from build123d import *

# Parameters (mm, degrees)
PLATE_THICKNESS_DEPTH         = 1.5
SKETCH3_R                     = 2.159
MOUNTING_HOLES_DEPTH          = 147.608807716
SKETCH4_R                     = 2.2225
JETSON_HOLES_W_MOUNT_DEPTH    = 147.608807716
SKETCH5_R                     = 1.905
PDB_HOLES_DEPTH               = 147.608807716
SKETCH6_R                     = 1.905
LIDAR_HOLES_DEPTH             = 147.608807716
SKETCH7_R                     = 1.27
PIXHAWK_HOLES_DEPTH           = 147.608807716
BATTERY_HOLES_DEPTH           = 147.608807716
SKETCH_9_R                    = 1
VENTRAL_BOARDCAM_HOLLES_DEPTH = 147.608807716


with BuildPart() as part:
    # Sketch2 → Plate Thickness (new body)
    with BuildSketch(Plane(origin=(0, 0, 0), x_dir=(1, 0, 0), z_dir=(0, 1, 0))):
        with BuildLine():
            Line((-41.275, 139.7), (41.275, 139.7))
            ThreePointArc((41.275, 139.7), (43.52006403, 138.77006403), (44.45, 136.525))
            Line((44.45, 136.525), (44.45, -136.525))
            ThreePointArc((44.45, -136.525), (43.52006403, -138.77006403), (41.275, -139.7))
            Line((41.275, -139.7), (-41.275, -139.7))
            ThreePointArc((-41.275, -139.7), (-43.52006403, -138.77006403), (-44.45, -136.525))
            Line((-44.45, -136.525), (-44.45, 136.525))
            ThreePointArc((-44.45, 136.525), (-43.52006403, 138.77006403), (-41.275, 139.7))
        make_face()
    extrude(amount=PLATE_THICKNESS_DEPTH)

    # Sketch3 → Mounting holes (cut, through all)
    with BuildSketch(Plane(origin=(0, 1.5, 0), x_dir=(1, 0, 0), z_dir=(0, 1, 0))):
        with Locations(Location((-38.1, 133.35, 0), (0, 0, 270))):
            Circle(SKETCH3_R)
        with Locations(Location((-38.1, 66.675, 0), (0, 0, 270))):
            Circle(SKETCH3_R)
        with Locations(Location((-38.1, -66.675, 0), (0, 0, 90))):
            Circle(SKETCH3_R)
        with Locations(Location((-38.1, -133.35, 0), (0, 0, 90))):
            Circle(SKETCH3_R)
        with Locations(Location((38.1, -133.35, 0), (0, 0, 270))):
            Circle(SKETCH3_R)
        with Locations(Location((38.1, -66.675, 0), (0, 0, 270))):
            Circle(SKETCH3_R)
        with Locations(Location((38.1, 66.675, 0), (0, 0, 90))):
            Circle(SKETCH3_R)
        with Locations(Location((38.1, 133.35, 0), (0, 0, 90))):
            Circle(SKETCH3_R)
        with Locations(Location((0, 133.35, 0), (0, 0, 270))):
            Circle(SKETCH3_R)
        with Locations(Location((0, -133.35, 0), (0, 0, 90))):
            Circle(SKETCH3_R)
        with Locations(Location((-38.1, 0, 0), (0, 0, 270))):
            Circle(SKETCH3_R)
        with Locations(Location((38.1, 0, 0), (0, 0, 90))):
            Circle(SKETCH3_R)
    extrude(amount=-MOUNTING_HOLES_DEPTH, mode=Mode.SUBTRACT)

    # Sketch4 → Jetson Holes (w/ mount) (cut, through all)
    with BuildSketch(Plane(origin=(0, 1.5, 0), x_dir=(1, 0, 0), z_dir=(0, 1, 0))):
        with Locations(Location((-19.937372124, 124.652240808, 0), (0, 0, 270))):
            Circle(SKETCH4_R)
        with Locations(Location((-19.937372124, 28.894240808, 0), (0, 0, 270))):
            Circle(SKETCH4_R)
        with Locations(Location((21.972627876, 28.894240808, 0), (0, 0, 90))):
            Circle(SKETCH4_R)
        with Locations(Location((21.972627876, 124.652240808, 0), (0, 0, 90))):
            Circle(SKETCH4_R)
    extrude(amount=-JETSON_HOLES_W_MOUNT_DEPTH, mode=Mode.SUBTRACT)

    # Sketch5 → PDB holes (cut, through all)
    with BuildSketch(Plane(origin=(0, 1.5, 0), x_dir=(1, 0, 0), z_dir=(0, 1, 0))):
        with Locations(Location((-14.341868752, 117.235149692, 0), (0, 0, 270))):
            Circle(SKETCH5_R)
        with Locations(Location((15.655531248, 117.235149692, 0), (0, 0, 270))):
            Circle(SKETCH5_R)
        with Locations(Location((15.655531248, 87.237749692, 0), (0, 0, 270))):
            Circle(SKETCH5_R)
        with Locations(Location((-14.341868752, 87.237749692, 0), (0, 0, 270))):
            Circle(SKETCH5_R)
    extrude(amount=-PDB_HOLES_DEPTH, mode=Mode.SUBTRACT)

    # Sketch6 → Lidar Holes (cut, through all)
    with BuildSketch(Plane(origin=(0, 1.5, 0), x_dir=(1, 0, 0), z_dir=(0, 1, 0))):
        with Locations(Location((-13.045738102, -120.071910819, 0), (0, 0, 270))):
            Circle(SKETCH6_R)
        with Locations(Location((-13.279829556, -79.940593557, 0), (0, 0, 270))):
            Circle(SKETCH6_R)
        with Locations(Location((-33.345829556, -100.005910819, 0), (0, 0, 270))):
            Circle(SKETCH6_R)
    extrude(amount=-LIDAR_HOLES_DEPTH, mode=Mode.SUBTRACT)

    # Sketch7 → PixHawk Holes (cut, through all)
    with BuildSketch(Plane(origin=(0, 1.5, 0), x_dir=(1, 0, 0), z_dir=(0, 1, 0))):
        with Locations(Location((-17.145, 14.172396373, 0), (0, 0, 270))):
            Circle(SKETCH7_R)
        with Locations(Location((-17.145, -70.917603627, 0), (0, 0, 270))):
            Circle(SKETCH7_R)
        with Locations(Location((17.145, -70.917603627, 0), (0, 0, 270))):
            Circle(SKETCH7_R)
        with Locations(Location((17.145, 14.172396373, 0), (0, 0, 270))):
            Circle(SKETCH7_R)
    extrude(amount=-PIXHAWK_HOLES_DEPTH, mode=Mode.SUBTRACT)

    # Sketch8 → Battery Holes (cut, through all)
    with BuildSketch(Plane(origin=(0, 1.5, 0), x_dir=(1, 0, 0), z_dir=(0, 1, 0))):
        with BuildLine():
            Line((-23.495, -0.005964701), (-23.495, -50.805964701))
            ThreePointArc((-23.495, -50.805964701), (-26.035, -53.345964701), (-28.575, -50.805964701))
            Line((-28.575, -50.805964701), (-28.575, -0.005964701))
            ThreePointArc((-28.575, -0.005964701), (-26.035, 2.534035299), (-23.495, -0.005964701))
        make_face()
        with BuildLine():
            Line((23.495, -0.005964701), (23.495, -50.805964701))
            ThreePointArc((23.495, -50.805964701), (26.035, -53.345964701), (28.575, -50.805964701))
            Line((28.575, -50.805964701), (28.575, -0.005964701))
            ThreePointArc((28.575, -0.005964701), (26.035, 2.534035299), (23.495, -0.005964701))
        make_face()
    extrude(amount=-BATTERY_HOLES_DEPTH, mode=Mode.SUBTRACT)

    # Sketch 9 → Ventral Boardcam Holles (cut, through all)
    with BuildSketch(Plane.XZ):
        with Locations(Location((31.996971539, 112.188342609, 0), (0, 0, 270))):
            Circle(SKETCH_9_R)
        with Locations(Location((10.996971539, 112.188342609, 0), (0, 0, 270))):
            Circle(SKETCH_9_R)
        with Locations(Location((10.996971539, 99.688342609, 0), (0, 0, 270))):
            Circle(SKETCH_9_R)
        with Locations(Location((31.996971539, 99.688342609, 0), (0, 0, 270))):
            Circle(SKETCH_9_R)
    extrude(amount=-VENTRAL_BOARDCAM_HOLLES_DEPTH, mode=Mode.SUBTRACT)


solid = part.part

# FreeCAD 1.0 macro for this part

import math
import FreeCAD as App
import Part
import Sketcher
from FreeCAD import Vector
Q = App.Units.Quantity

doc = App.newDocument("Part")
body = doc.addObject("PartDesign::Body", "Body")

sketch1 = doc.addObject("Sketcher::SketchObject", "Sketch")
body.addObject(sketch1)
sketch1.AttachmentSupport = (doc.XZ_Plane, [""])
sketch1.MapMode = "FlatFace"
sketch1.addGeometry(Part.LineSegment(Vector(41.275, -139.7, 0), Vector(-41.275, -139.7, 0)), False)
sketch1.addGeometry(Part.ArcOfCircle(Part.Circle(Vector(-41.275, -136.525, 0), Vector(0, 0, 1), 3.175), math.radians(-180), math.radians(-90)), False)
sketch1.addGeometry(Part.LineSegment(Vector(-44.45, -136.525, 0), Vector(-44.45, 136.525, 0)), False)
sketch1.addGeometry(Part.ArcOfCircle(Part.Circle(Vector(-41.275, 136.525, 0), Vector(0, 0, 1), 3.175), math.radians(90), math.radians(180)), False)
sketch1.addGeometry(Part.LineSegment(Vector(-41.275, 139.7, 0), Vector(41.275, 139.7, 0)), False)
sketch1.addGeometry(Part.ArcOfCircle(Part.Circle(Vector(41.275, 136.525, 0), Vector(0, 0, 1), 3.175), math.radians(0), math.radians(90)), False)
sketch1.addGeometry(Part.LineSegment(Vector(44.45, 136.525, 0), Vector(44.45, -136.525, 0)), False)
sketch1.addGeometry(Part.ArcOfCircle(Part.Circle(Vector(41.275, -136.525, 0), Vector(0, 0, 1), 3.175), math.radians(-90), math.radians(0)), False)
sketch1.addConstraint(Sketcher.Constraint("Tangent", 0, 2, 1, 2))
sketch1.addConstraint(Sketcher.Constraint("Tangent", 1, 1, 2, 1))
sketch1.addConstraint(Sketcher.Constraint("Tangent", 2, 2, 3, 2))
sketch1.addConstraint(Sketcher.Constraint("Tangent", 3, 1, 4, 1))
sketch1.addConstraint(Sketcher.Constraint("Tangent", 4, 2, 5, 2))
sketch1.addConstraint(Sketcher.Constraint("Tangent", 5, 1, 6, 1))
sketch1.addConstraint(Sketcher.Constraint("Tangent", 6, 2, 7, 2))
sketch1.addConstraint(Sketcher.Constraint("Tangent", 7, 1, 0, 1))
sketch1.addConstraint(Sketcher.Constraint("Horizontal", 0))
sketch1.addConstraint(Sketcher.Constraint("Vertical", 2))
sketch1.addConstraint(Sketcher.Constraint("Horizontal", 4))
sketch1.addConstraint(Sketcher.Constraint("Vertical", 6))
sketch1.addConstraint(Sketcher.Constraint("Equal", 1, 3))
sketch1.addConstraint(Sketcher.Constraint("Equal", 3, 5))
sketch1.addConstraint(Sketcher.Constraint("Equal", 5, 7))
sketch1.addConstraint(Sketcher.Constraint("Symmetric", 1, 3, 5, 3, -1, 1))
sketch1.addConstraint(Sketcher.Constraint("Radius", 1, Q("0.125 in")))
sketch1.addConstraint(Sketcher.Constraint("DistanceX", 0, 2, 0, 1, Q("3.25 in")))
sketch1.addConstraint(Sketcher.Constraint("DistanceY", 2, 1, 2, 2, Q("10.75 in")))
pad1 = doc.addObject("PartDesign::Pad", "Pad")
body.addObject(pad1)
pad1.Profile = sketch1
pad1.Length = 1.5
pad1.Reversed = True

sketch2 = doc.addObject("Sketcher::SketchObject", "Sketch001")
body.addObject(sketch2)
sketch2.AttachmentSupport = (doc.XZ_Plane, [""])
sketch2.MapMode = "FlatFace"
sketch2.AttachmentOffset = App.Placement(Vector(0, 0, -1.5), App.Rotation())
sketch2.addGeometry(Part.Circle(Vector(-38.1, -133.35, 0), Vector(0, 0, 1), 2.159), False)
sketch2.addGeometry(Part.Circle(Vector(-38.1, -66.675, 0), Vector(0, 0, 1), 2.159), False)
sketch2.addGeometry(Part.Circle(Vector(-38.1, 66.675, 0), Vector(0, 0, 1), 2.159), False)
sketch2.addGeometry(Part.Circle(Vector(-38.1, 133.35, 0), Vector(0, 0, 1), 2.159), False)
sketch2.addGeometry(Part.Circle(Vector(38.1, 133.35, 0), Vector(0, 0, 1), 2.159), False)
sketch2.addGeometry(Part.Circle(Vector(38.1, 66.675, 0), Vector(0, 0, 1), 2.159), False)
sketch2.addGeometry(Part.Circle(Vector(38.1, -66.675, 0), Vector(0, 0, 1), 2.159), False)
sketch2.addGeometry(Part.Circle(Vector(38.1, -133.35, 0), Vector(0, 0, 1), 2.159), False)
sketch2.addGeometry(Part.Circle(Vector(0, -133.35, 0), Vector(0, 0, 1), 2.159), False)
sketch2.addGeometry(Part.Circle(Vector(0, 133.35, 0), Vector(0, 0, 1), 2.159), False)
sketch2.addGeometry(Part.Circle(Vector(-38.1, 0, 0), Vector(0, 0, 1), 2.159), False)
sketch2.addGeometry(Part.Circle(Vector(38.1, 0, 0), Vector(0, 0, 1), 2.159), False)
sketch2.addConstraint(Sketcher.Constraint("Equal", 0, 1))
sketch2.addConstraint(Sketcher.Constraint("Equal", 1, 2))
sketch2.addConstraint(Sketcher.Constraint("Equal", 2, 3))
sketch2.addConstraint(Sketcher.Constraint("Equal", 3, 4))
sketch2.addConstraint(Sketcher.Constraint("Equal", 4, 5))
sketch2.addConstraint(Sketcher.Constraint("Equal", 5, 6))
sketch2.addConstraint(Sketcher.Constraint("Equal", 6, 7))
sketch2.addConstraint(Sketcher.Constraint("Equal", 7, 8))
sketch2.addConstraint(Sketcher.Constraint("Equal", 8, 9))
sketch2.addConstraint(Sketcher.Constraint("Equal", 9, 10))
sketch2.addConstraint(Sketcher.Constraint("Equal", 10, 11))
sketch2.addConstraint(Sketcher.Constraint("Symmetric", 0, 3, 4, 3, -1, 1))
sketch2.addConstraint(Sketcher.Constraint("Symmetric", 1, 3, 5, 3, -1, 1))
sketch2.addConstraint(Sketcher.Constraint("Symmetric", 2, 3, 6, 3, -1, 1))
sketch2.addConstraint(Sketcher.Constraint("Symmetric", 3, 3, 7, 3, -1, 1))
sketch2.addConstraint(Sketcher.Constraint("Symmetric", 8, 3, 9, 3, -1, 1))
sketch2.addConstraint(Sketcher.Constraint("Symmetric", 10, 3, 11, 3, -1, 1))
sketch2.addConstraint(Sketcher.Constraint("Symmetric", 3, 3, 4, 3, -2))
sketch2.addConstraint(Sketcher.Constraint("Symmetric", 2, 3, 5, 3, -2))
sketch2.addConstraint(Sketcher.Constraint("PointOnObject", 8, 3, -2))
sketch2.addConstraint(Sketcher.Constraint("PointOnObject", 10, 3, -1))
sketch2.addConstraint(Sketcher.Constraint("Horizontal", 7, 3, 8, 3))
sketch2.addConstraint(Sketcher.Constraint("Vertical", 0, 3, 1, 3))
sketch2.addConstraint(Sketcher.Constraint("Vertical", 3, 3, 10, 3))
sketch2.addConstraint(Sketcher.Constraint("Diameter", 0, Q("0.17 in")))
sketch2.addConstraint(Sketcher.Constraint("DistanceX", 3, 3, 4, 3, Q("3 in")))
sketch2.addConstraint(Sketcher.Constraint("DistanceY", 0, 3, 3, 3, Q("10.5 in")))
sketch2.addConstraint(Sketcher.Constraint("DistanceY", 1, 3, 2, 3, Q("5.25 in")))
pocket1 = doc.addObject("PartDesign::Pocket", "Pocket")
body.addObject(pocket1)
pocket1.Profile = sketch2
pocket1.Type = "ThroughAll"
pocket1.Reversed = True

sketch3 = doc.addObject("Sketcher::SketchObject", "Sketch002")
body.addObject(sketch3)
sketch3.AttachmentSupport = (doc.XZ_Plane, [""])
sketch3.MapMode = "FlatFace"
sketch3.AttachmentOffset = App.Placement(Vector(0, 0, -1.5), App.Rotation())
sketch3.addGeometry(Part.Circle(Vector(-19.937372, -124.652241, 0), Vector(0, 0, 1), 2.2225), False)
sketch3.addGeometry(Part.Circle(Vector(-19.937372, -28.894241, 0), Vector(0, 0, 1), 2.2225), False)
sketch3.addGeometry(Part.Circle(Vector(21.972628, -28.894241, 0), Vector(0, 0, 1), 2.2225), False)
sketch3.addGeometry(Part.Circle(Vector(21.972628, -124.652241, 0), Vector(0, 0, 1), 2.2225), False)
sketch3.addConstraint(Sketcher.Constraint("Equal", 0, 1))
sketch3.addConstraint(Sketcher.Constraint("Equal", 1, 2))
sketch3.addConstraint(Sketcher.Constraint("Equal", 2, 3))
sketch3.addConstraint(Sketcher.Constraint("Horizontal", 1, 3, 2, 3))
sketch3.addConstraint(Sketcher.Constraint("Horizontal", 0, 3, 3, 3))
sketch3.addConstraint(Sketcher.Constraint("Vertical", 0, 3, 1, 3))
sketch3.addConstraint(Sketcher.Constraint("Vertical", 2, 3, 3, 3))
sketch3.addConstraint(Sketcher.Constraint("Diameter", 0, Q("0.175 in")))
sketch3.addConstraint(Sketcher.Constraint("DistanceY", 0, 3, 1, 3, Q("3.77 in")))
sketch3.addConstraint(Sketcher.Constraint("DistanceX", 1, 3, 2, 3, Q("1.65 in")))
sketch3.addConstraint(Sketcher.Constraint("DistanceY", 0, 3, -1, 1, 124.652241))
sketch3.addConstraint(Sketcher.Constraint("DistanceX", 0, 3, -1, 1, 19.937372))
pocket2 = doc.addObject("PartDesign::Pocket", "Pocket001")
body.addObject(pocket2)
pocket2.Profile = sketch3
pocket2.Type = "ThroughAll"
pocket2.Reversed = True

sketch4 = doc.addObject("Sketcher::SketchObject", "Sketch003")
body.addObject(sketch4)
sketch4.AttachmentSupport = (doc.XZ_Plane, [""])
sketch4.MapMode = "FlatFace"
sketch4.AttachmentOffset = App.Placement(Vector(0, 0, -1.5), App.Rotation())
sketch4.addGeometry(Part.Circle(Vector(-14.341869, -117.23515, 0), Vector(0, 0, 1), 1.905), False)
sketch4.addGeometry(Part.Circle(Vector(15.655531, -117.23515, 0), Vector(0, 0, 1), 1.905), False)
sketch4.addGeometry(Part.Circle(Vector(15.655531, -87.23775, 0), Vector(0, 0, 1), 1.905), False)
sketch4.addGeometry(Part.Circle(Vector(-14.341869, -87.23775, 0), Vector(0, 0, 1), 1.905), False)
sketch4.addConstraint(Sketcher.Constraint("Equal", 0, 1))
sketch4.addConstraint(Sketcher.Constraint("Equal", 1, 2))
sketch4.addConstraint(Sketcher.Constraint("Equal", 2, 3))
sketch4.addConstraint(Sketcher.Constraint("Horizontal", 0, 3, 1, 3))
sketch4.addConstraint(Sketcher.Constraint("Horizontal", 2, 3, 3, 3))
sketch4.addConstraint(Sketcher.Constraint("Vertical", 1, 3, 2, 3))
sketch4.addConstraint(Sketcher.Constraint("Vertical", 0, 3, 3, 3))
sketch4.addConstraint(Sketcher.Constraint("Diameter", 0, Q("0.15 in")))
sketch4.addConstraint(Sketcher.Constraint("DistanceX", 0, 3, 1, 3, Q("1.181 in")))
sketch4.addConstraint(Sketcher.Constraint("DistanceY", 1, 3, 2, 3, Q("1.181 in")))
sketch4.addConstraint(Sketcher.Constraint("DistanceX", 0, 3, -1, 1, 14.341869))
sketch4.addConstraint(Sketcher.Constraint("DistanceY", 0, 3, -1, 1, 117.23515))
pocket3 = doc.addObject("PartDesign::Pocket", "Pocket002")
body.addObject(pocket3)
pocket3.Profile = sketch4
pocket3.Type = "ThroughAll"
pocket3.Reversed = True

sketch5 = doc.addObject("Sketcher::SketchObject", "Sketch004")
body.addObject(sketch5)
sketch5.AttachmentSupport = (doc.XZ_Plane, [""])
sketch5.MapMode = "FlatFace"
sketch5.AttachmentOffset = App.Placement(Vector(0, 0, -1.5), App.Rotation())
sketch5.addGeometry(Part.Circle(Vector(-13.045738, 120.071911, 0), Vector(0, 0, 1), 1.905), False)
sketch5.addGeometry(Part.Circle(Vector(-13.27983, 79.940594, 0), Vector(0, 0, 1), 1.905), False)
sketch5.addGeometry(Part.Circle(Vector(-33.34583, 100.005911, 0), Vector(0, 0, 1), 1.905), False)
sketch5.addConstraint(Sketcher.Constraint("Equal", 0, 1))
sketch5.addConstraint(Sketcher.Constraint("Equal", 1, 2))
sketch5.addConstraint(Sketcher.Constraint("Diameter", 0, Q("0.15 in")))
sketch5.addConstraint(Sketcher.Constraint("DistanceX", 2, 3, 1, 3, Q("0.79 in")))
sketch5.addConstraint(Sketcher.Constraint("DistanceY", 2, 3, 0, 3, Q("0.79 in")))
sketch5.addConstraint(Sketcher.Constraint("DistanceX", 0, 3, -1, 1, 13.045738))
sketch5.addConstraint(Sketcher.Constraint("DistanceY", -1, 1, 0, 3, 120.071911))
sketch5.addConstraint(Sketcher.Constraint("DistanceX", 1, 3, -1, 1, 13.27983))
sketch5.addConstraint(Sketcher.Constraint("DistanceY", -1, 1, 1, 3, 79.940594))
pocket4 = doc.addObject("PartDesign::Pocket", "Pocket003")
body.addObject(pocket4)
pocket4.Profile = sketch5
pocket4.Type = "ThroughAll"
pocket4.Reversed = True

sketch6 = doc.addObject("Sketcher::SketchObject", "Sketch005")
body.addObject(sketch6)
sketch6.AttachmentSupport = (doc.XZ_Plane, [""])
sketch6.MapMode = "FlatFace"
sketch6.AttachmentOffset = App.Placement(Vector(0, 0, -1.5), App.Rotation())
sketch6.addGeometry(Part.Circle(Vector(-17.145, -14.172396, 0), Vector(0, 0, 1), 1.27), False)
sketch6.addGeometry(Part.Circle(Vector(-17.145, 70.917604, 0), Vector(0, 0, 1), 1.27), False)
sketch6.addGeometry(Part.Circle(Vector(17.145, 70.917604, 0), Vector(0, 0, 1), 1.27), False)
sketch6.addGeometry(Part.Circle(Vector(17.145, -14.172396, 0), Vector(0, 0, 1), 1.27), False)
sketch6.addConstraint(Sketcher.Constraint("Equal", 0, 1))
sketch6.addConstraint(Sketcher.Constraint("Equal", 1, 2))
sketch6.addConstraint(Sketcher.Constraint("Equal", 2, 3))
sketch6.addConstraint(Sketcher.Constraint("Symmetric", 1, 3, 2, 3, -2))
sketch6.addConstraint(Sketcher.Constraint("Symmetric", 0, 3, 3, 3, -2))
sketch6.addConstraint(Sketcher.Constraint("Vertical", 0, 3, 1, 3))
sketch6.addConstraint(Sketcher.Constraint("Diameter", 0, Q("0.1 in")))
sketch6.addConstraint(Sketcher.Constraint("DistanceY", 0, 3, 1, 3, Q("3.35 in")))
sketch6.addConstraint(Sketcher.Constraint("DistanceX", 1, 3, 2, 3, Q("1.35 in")))
sketch6.addConstraint(Sketcher.Constraint("DistanceY", 0, 3, -1, 1, 14.172396))
pocket5 = doc.addObject("PartDesign::Pocket", "Pocket004")
body.addObject(pocket5)
pocket5.Profile = sketch6
pocket5.Type = "ThroughAll"
pocket5.Reversed = True

sketch7 = doc.addObject("Sketcher::SketchObject", "Sketch006")
body.addObject(sketch7)
sketch7.AttachmentSupport = (doc.XZ_Plane, [""])
sketch7.MapMode = "FlatFace"
sketch7.AttachmentOffset = App.Placement(Vector(0, 0, -1.5), App.Rotation())
sketch7.addGeometry(Part.LineSegment(Vector(-23.495, 50.805965, 0), Vector(-23.495, 0.005965, 0)), False)
sketch7.addGeometry(Part.ArcOfCircle(Part.Circle(Vector(-26.035, 0.005965, 0), Vector(0, 0, 1), 2.54), math.radians(180), math.radians(360)), False)
sketch7.addGeometry(Part.LineSegment(Vector(-28.575, 0.005965, 0), Vector(-28.575, 50.805965, 0)), False)
sketch7.addGeometry(Part.ArcOfCircle(Part.Circle(Vector(-26.035, 50.805965, 0), Vector(0, 0, 1), 2.54), math.radians(0), math.radians(180)), False)
sketch7.addGeometry(Part.LineSegment(Vector(23.495, 0.005965, 0), Vector(23.495, 50.805965, 0)), False)
sketch7.addGeometry(Part.ArcOfCircle(Part.Circle(Vector(26.035, 50.805965, 0), Vector(0, 0, 1), 2.54), math.radians(0), math.radians(180)), False)
sketch7.addGeometry(Part.LineSegment(Vector(28.575, 50.805965, 0), Vector(28.575, 0.005965, 0)), False)
sketch7.addGeometry(Part.ArcOfCircle(Part.Circle(Vector(26.035, 0.005965, 0), Vector(0, 0, 1), 2.54), math.radians(180), math.radians(360)), False)
sketch7.addConstraint(Sketcher.Constraint("Tangent", 0, 2, 1, 2))
sketch7.addConstraint(Sketcher.Constraint("Tangent", 1, 1, 2, 1))
sketch7.addConstraint(Sketcher.Constraint("Tangent", 2, 2, 3, 2))
sketch7.addConstraint(Sketcher.Constraint("Tangent", 3, 1, 0, 1))
sketch7.addConstraint(Sketcher.Constraint("Tangent", 4, 2, 5, 2))
sketch7.addConstraint(Sketcher.Constraint("Tangent", 5, 1, 6, 1))
sketch7.addConstraint(Sketcher.Constraint("Tangent", 6, 2, 7, 2))
sketch7.addConstraint(Sketcher.Constraint("Tangent", 7, 1, 4, 1))
sketch7.addConstraint(Sketcher.Constraint("Vertical", 0))
sketch7.addConstraint(Sketcher.Constraint("Vertical", 2))
sketch7.addConstraint(Sketcher.Constraint("Vertical", 4))
sketch7.addConstraint(Sketcher.Constraint("Vertical", 6))
sketch7.addConstraint(Sketcher.Constraint("Equal", 3, 5))
sketch7.addConstraint(Sketcher.Constraint("Symmetric", 3, 3, 5, 3, -2))
sketch7.addConstraint(Sketcher.Constraint("Horizontal", 1, 3, 7, 3))
sketch7.addConstraint(Sketcher.Constraint("Radius", 1, Q("0.1 in")))
sketch7.addConstraint(Sketcher.Constraint("DistanceY", 0, 2, 0, 1, Q("2 in")))
sketch7.addConstraint(Sketcher.Constraint("DistanceX", 3, 3, 5, 3, Q("2.05 in")))
sketch7.addConstraint(Sketcher.Constraint("DistanceY", -1, 1, 1, 3, 0.005965))
pocket6 = doc.addObject("PartDesign::Pocket", "Pocket005")
body.addObject(pocket6)
pocket6.Profile = sketch7
pocket6.Type = "ThroughAll"
pocket6.Reversed = True

sketch8 = doc.addObject("Sketcher::SketchObject", "Sketch007")
body.addObject(sketch8)
sketch8.AttachmentSupport = (doc.XZ_Plane, [""])
sketch8.MapMode = "FlatFace"
sketch8.addGeometry(Part.Circle(Vector(31.996972, 112.188343, 0), Vector(0, 0, 1), 1), False)
sketch8.addGeometry(Part.Circle(Vector(10.996972, 112.188343, 0), Vector(0, 0, 1), 1), False)
sketch8.addGeometry(Part.Circle(Vector(10.996972, 99.688343, 0), Vector(0, 0, 1), 1), False)
sketch8.addGeometry(Part.Circle(Vector(31.996972, 99.688343, 0), Vector(0, 0, 1), 1), False)
sketch8.addConstraint(Sketcher.Constraint("Equal", 0, 1))
sketch8.addConstraint(Sketcher.Constraint("Equal", 1, 2))
sketch8.addConstraint(Sketcher.Constraint("Equal", 2, 3))
sketch8.addConstraint(Sketcher.Constraint("Horizontal", 0, 3, 1, 3))
sketch8.addConstraint(Sketcher.Constraint("Horizontal", 2, 3, 3, 3))
sketch8.addConstraint(Sketcher.Constraint("Vertical", 1, 3, 2, 3))
sketch8.addConstraint(Sketcher.Constraint("Vertical", 0, 3, 3, 3))
sketch8.addConstraint(Sketcher.Constraint("Diameter", 0, 2.0))
sketch8.addConstraint(Sketcher.Constraint("DistanceX", 1, 3, 0, 3, 21.0))
sketch8.addConstraint(Sketcher.Constraint("DistanceY", 2, 3, 1, 3, 12.5))
sketch8.addConstraint(Sketcher.Constraint("DistanceX", -1, 1, 0, 3, 31.996972))
sketch8.addConstraint(Sketcher.Constraint("DistanceY", -1, 1, 0, 3, 112.188343))
pocket7 = doc.addObject("PartDesign::Pocket", "Pocket006")
body.addObject(pocket7)
pocket7.Profile = sketch8
pocket7.Type = "ThroughAll"

doc.recompute()
